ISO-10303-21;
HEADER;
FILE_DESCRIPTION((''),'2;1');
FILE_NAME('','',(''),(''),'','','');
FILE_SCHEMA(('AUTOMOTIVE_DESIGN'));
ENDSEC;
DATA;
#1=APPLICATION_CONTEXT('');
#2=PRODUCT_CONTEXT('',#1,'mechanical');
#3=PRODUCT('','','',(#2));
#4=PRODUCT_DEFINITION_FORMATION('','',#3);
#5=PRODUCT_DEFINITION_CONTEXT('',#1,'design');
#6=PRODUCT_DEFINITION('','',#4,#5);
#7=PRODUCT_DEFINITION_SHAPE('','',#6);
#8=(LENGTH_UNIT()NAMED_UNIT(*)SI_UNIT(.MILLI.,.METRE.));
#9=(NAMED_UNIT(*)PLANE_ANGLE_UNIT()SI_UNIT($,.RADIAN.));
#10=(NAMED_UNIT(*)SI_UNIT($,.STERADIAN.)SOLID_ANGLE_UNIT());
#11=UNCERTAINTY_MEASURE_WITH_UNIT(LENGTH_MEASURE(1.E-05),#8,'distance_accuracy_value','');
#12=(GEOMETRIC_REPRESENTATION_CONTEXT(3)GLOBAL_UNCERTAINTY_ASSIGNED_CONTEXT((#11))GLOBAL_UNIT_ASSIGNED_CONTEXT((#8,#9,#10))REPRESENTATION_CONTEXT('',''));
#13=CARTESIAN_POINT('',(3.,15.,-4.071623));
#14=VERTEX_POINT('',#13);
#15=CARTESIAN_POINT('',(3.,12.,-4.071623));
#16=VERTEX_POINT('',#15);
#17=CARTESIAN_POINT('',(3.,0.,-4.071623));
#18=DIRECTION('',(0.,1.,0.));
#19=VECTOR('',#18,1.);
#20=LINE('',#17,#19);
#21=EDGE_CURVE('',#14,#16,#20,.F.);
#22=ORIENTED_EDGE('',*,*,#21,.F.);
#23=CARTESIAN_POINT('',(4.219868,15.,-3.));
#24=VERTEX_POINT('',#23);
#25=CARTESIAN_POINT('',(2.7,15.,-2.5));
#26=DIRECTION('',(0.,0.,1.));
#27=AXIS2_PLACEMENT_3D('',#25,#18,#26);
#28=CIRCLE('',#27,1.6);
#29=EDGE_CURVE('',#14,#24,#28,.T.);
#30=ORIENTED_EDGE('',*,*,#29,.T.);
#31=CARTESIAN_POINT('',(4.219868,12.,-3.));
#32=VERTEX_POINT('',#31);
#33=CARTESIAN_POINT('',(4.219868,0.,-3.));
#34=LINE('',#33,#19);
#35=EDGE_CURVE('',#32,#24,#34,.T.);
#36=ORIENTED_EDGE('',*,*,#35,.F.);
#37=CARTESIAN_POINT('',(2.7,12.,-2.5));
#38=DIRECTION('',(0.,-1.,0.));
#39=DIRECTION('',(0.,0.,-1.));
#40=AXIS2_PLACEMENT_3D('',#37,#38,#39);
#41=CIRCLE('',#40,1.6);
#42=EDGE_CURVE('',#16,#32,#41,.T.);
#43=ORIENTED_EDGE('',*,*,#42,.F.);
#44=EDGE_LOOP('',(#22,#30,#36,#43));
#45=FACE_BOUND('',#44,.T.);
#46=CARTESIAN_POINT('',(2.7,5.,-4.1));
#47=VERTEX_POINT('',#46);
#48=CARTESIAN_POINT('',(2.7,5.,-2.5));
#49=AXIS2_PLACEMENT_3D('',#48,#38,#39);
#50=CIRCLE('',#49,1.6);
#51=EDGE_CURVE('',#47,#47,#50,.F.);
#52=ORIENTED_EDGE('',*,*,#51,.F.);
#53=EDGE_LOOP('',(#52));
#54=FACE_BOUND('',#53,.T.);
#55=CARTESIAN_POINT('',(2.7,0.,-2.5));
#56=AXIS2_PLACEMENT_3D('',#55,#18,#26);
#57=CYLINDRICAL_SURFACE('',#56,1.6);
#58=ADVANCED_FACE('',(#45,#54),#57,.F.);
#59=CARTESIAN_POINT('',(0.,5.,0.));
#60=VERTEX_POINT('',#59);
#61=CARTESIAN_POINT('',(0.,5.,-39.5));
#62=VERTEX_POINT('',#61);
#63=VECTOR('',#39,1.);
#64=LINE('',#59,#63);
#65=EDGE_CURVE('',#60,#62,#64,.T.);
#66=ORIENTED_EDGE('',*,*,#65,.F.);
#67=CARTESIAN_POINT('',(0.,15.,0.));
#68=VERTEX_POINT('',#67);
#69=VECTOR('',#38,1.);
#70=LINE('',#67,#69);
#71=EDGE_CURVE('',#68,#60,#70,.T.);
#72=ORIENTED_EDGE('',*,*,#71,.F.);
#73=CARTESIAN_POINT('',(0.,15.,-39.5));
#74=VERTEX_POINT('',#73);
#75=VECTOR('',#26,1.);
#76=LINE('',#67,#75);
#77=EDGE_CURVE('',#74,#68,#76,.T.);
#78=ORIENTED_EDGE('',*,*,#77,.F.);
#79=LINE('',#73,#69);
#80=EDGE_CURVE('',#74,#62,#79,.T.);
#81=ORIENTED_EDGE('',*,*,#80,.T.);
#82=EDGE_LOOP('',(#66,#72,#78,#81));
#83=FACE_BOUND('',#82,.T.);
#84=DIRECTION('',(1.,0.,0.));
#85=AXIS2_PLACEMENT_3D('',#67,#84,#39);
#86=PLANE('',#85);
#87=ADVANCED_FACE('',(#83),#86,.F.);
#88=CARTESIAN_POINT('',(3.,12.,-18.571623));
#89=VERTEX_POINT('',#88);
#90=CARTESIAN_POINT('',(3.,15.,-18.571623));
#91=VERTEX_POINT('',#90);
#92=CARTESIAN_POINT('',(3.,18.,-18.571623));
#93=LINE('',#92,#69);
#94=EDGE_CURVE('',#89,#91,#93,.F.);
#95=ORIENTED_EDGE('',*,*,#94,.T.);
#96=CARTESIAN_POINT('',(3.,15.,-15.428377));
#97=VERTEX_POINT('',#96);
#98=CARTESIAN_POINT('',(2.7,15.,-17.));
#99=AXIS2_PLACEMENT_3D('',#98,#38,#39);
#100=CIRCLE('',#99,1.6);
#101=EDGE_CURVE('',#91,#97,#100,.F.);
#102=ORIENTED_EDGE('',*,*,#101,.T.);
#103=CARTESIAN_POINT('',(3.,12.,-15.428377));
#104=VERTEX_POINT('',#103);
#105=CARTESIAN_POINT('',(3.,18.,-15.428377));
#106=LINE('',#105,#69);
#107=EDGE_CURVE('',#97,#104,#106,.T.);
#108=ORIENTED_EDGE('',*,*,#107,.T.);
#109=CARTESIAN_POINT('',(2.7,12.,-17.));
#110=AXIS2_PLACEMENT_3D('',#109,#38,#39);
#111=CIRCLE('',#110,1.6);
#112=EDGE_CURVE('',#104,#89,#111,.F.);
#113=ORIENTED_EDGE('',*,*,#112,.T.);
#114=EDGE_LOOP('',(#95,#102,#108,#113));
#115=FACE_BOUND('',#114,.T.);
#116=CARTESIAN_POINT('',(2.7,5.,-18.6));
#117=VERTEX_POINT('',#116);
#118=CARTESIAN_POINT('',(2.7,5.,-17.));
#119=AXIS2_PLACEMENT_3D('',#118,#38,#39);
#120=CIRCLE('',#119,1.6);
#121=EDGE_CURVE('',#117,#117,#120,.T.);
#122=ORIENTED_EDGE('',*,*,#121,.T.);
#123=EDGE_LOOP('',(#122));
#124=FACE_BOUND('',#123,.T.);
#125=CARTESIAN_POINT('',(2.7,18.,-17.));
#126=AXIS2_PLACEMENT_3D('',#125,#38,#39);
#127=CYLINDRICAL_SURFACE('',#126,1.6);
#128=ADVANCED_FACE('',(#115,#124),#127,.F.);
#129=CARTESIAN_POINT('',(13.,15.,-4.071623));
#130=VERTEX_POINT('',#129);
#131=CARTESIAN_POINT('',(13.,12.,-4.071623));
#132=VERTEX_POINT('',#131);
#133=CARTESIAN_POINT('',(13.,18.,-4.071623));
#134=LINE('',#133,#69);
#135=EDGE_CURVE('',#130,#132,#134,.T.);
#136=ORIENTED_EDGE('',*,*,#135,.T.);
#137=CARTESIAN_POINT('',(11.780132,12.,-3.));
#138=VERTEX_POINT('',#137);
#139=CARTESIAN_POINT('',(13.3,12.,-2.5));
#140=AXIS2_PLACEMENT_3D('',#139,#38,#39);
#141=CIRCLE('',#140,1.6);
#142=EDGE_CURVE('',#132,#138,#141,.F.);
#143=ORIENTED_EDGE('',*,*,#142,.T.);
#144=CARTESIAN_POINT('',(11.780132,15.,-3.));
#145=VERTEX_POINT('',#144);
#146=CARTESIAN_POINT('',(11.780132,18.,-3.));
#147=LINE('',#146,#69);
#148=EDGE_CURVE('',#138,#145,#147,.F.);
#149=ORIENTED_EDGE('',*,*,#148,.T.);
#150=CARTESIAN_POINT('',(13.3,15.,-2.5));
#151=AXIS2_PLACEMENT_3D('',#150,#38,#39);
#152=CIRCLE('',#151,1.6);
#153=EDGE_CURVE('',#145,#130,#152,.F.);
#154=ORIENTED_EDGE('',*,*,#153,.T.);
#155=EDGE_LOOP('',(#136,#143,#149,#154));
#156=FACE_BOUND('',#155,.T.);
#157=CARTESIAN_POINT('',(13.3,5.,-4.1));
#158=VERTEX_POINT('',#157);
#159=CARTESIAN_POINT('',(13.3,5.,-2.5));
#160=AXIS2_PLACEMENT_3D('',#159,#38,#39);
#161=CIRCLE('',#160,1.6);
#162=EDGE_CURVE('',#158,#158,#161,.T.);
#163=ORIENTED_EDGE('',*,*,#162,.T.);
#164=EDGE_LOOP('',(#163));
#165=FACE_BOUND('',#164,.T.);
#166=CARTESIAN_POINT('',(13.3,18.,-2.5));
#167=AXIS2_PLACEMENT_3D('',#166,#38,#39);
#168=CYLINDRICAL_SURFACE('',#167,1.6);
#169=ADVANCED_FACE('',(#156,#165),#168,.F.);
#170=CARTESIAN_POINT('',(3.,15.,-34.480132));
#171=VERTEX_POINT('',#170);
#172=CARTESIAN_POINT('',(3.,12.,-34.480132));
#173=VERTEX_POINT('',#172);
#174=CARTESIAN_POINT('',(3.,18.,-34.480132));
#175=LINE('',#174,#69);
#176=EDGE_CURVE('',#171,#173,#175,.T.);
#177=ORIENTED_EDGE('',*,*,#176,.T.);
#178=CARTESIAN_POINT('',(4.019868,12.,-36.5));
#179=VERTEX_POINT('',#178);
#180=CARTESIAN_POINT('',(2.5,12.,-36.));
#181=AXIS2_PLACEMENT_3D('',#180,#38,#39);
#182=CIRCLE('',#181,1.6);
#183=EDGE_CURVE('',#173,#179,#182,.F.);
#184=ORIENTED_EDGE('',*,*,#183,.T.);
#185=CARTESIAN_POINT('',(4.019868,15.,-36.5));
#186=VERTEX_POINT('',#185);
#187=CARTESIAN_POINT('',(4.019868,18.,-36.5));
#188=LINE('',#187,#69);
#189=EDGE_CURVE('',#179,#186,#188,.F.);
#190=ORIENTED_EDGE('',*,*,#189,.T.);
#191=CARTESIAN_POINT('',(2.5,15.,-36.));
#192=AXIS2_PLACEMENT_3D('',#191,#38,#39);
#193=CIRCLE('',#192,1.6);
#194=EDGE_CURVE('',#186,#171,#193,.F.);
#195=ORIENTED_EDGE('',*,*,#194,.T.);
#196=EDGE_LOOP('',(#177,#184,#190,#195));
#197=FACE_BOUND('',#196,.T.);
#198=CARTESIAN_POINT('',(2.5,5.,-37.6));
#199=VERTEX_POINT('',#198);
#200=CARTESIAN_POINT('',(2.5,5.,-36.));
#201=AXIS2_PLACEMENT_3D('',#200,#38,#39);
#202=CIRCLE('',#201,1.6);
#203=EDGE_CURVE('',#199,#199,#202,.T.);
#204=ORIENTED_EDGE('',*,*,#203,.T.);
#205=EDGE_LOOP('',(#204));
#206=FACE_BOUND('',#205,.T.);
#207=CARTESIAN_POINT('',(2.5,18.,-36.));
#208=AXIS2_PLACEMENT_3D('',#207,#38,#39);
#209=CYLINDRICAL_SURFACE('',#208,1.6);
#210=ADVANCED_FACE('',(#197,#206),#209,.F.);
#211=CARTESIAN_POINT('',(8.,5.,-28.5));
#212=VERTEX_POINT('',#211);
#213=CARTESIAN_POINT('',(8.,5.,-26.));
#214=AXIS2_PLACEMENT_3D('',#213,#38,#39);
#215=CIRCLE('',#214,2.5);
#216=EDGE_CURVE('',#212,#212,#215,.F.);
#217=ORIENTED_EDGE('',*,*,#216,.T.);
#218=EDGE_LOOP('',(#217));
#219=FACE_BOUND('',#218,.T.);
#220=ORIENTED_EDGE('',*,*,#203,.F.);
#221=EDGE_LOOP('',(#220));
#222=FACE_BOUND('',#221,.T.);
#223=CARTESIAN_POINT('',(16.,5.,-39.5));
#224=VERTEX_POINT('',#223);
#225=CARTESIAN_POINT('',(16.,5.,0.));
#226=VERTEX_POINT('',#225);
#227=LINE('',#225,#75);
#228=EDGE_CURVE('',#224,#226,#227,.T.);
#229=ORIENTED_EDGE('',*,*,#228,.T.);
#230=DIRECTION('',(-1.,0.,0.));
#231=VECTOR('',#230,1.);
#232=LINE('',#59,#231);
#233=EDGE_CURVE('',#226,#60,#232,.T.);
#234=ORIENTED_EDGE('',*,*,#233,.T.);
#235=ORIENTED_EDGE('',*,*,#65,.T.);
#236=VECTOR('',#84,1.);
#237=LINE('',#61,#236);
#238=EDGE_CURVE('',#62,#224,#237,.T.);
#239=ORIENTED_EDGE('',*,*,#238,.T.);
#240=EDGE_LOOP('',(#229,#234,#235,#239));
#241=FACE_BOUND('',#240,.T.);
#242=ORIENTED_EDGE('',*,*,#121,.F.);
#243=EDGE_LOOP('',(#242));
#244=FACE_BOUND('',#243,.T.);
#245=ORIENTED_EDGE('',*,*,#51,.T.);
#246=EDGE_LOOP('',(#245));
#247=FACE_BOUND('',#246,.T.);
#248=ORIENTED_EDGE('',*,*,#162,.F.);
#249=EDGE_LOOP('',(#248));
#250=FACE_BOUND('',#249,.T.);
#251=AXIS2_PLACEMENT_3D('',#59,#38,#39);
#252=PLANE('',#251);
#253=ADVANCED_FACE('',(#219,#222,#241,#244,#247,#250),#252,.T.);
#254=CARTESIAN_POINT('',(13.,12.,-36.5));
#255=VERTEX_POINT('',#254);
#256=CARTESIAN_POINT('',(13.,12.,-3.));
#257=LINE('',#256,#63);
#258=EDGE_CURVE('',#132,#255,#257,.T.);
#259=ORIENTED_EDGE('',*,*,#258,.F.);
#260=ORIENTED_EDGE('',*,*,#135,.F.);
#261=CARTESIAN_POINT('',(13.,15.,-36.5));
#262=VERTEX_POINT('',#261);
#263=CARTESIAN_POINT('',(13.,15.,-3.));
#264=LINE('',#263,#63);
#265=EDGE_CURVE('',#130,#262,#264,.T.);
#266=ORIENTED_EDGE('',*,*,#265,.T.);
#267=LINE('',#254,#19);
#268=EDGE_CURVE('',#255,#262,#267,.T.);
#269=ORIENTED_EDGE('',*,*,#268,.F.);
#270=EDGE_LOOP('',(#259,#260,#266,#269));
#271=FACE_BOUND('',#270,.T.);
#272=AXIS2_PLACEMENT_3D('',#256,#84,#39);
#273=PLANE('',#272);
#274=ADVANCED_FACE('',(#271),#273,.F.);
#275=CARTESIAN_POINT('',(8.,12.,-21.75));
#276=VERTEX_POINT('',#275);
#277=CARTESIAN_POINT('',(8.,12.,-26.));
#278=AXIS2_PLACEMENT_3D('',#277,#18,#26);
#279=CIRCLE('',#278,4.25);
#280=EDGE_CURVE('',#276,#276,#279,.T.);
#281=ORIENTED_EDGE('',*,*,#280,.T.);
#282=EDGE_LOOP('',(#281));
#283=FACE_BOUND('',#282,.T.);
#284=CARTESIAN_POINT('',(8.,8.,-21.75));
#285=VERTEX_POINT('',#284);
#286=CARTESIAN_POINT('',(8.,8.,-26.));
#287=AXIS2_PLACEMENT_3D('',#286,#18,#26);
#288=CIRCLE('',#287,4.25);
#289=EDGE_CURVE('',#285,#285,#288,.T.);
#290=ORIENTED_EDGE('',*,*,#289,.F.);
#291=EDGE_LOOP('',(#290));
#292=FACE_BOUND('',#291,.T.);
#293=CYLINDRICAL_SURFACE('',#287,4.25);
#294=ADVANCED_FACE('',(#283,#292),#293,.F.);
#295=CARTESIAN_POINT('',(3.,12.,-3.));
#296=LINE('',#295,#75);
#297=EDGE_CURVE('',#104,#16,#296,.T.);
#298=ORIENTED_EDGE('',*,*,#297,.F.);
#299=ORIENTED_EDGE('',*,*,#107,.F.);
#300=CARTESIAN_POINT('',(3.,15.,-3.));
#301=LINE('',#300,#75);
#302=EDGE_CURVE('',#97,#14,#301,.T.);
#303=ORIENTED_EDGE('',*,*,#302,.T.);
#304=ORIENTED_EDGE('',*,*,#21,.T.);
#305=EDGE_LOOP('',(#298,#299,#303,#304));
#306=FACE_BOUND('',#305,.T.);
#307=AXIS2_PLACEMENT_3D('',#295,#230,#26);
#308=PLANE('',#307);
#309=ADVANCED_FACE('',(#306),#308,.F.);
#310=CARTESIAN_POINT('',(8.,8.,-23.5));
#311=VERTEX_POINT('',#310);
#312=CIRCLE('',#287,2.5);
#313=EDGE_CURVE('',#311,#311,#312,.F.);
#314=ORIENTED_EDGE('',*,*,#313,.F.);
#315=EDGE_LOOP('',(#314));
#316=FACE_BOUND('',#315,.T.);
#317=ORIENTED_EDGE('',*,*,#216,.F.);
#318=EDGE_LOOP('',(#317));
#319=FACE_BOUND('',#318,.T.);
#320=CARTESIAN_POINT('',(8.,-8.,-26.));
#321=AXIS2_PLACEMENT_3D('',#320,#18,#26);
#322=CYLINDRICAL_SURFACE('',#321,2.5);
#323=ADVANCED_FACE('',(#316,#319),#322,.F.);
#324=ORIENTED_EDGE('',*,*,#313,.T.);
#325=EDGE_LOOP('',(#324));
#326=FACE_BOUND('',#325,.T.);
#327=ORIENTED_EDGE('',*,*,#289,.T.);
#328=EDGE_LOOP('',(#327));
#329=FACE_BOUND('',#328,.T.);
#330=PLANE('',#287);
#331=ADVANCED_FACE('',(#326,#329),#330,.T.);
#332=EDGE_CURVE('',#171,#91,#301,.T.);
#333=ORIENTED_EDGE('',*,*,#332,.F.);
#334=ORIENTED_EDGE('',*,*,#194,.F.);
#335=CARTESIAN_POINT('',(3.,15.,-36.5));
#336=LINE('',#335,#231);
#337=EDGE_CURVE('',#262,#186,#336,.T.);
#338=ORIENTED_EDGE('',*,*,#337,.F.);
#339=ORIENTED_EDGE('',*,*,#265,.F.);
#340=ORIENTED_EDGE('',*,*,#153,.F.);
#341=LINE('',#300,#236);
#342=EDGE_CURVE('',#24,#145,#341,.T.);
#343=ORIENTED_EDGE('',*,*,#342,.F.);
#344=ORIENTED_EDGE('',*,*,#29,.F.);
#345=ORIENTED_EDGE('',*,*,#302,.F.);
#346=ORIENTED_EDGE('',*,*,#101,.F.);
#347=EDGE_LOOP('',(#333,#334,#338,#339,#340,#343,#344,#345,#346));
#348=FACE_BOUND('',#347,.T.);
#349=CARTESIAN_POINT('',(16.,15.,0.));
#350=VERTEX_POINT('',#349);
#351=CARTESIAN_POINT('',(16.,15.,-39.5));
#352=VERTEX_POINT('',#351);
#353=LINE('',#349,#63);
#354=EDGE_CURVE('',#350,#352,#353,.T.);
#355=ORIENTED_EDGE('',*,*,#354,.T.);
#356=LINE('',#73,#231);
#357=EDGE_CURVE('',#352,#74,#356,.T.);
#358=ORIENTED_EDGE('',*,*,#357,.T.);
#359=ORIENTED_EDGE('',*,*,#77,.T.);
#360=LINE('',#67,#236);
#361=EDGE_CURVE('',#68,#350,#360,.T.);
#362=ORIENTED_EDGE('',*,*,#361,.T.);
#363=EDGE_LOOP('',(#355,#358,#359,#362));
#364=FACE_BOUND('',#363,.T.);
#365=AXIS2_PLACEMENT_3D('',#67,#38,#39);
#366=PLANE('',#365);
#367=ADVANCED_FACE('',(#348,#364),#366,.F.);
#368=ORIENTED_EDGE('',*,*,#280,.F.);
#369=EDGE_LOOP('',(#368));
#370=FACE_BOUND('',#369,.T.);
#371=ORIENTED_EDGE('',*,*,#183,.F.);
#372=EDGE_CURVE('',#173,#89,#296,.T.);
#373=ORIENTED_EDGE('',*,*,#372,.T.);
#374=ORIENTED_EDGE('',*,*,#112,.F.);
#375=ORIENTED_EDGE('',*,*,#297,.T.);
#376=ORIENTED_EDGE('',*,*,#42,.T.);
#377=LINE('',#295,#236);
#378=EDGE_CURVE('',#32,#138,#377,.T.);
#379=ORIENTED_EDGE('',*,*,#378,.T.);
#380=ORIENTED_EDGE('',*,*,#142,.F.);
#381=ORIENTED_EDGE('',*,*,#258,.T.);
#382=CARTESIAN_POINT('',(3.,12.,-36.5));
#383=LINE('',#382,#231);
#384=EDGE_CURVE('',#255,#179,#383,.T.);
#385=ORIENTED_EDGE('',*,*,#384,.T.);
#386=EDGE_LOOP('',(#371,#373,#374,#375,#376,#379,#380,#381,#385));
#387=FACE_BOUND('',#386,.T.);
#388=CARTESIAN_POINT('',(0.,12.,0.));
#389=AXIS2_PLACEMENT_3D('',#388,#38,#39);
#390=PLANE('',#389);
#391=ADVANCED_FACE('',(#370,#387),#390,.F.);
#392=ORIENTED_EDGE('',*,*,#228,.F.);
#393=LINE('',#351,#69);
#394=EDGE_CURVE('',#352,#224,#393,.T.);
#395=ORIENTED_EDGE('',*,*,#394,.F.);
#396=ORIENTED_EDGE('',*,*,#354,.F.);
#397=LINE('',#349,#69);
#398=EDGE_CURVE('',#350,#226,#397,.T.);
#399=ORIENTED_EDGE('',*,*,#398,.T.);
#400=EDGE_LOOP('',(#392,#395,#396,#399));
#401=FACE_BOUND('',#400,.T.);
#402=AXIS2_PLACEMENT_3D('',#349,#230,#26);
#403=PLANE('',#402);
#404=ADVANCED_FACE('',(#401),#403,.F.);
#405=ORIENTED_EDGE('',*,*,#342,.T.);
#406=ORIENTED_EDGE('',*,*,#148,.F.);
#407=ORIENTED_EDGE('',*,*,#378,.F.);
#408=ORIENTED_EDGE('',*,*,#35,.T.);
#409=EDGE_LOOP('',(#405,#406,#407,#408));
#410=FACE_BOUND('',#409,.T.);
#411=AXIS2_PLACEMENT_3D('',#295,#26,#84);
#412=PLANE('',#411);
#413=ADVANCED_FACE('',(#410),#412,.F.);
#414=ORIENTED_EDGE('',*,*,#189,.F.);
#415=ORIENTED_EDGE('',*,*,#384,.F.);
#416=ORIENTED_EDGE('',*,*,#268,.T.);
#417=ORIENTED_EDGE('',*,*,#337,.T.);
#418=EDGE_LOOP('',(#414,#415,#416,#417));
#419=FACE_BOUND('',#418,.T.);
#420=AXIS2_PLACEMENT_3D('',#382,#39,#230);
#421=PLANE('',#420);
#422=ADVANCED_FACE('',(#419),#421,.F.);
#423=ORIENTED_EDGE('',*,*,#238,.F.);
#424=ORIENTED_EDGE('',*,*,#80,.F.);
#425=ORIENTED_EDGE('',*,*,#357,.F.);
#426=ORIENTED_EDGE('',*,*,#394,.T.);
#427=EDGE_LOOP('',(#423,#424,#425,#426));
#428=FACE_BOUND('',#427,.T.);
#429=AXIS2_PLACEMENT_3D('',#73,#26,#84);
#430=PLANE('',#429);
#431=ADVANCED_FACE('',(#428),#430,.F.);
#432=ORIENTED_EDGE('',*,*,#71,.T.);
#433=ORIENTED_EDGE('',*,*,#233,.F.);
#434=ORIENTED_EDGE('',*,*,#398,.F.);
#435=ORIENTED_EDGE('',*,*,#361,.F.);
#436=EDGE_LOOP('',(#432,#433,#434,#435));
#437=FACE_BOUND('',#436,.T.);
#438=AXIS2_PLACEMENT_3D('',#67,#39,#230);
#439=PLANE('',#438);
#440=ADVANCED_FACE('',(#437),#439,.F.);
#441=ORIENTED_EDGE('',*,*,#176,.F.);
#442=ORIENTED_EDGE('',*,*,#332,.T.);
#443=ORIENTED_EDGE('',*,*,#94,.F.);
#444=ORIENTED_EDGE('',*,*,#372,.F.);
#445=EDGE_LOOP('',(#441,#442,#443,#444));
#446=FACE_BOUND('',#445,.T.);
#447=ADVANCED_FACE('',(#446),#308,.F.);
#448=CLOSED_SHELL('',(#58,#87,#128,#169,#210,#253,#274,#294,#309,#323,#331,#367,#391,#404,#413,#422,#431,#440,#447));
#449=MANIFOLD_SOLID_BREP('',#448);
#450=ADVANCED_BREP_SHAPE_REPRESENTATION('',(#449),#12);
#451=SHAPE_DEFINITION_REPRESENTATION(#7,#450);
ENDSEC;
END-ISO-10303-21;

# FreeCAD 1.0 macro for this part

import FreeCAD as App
import Part
import Sketcher

V = App.Vector


def add_polygon(sketch, points):
    """Adds a closed chain of lines whose ends are joined by coincident constraints."""
    first, n = sketch.GeometryCount, len(points)
    for a, b in zip(points, points[1:] + points[:1]):
        sketch.addGeometry(Part.LineSegment(App.Vector(*a, 0), App.Vector(*b, 0)), False)
    for i in range(n):
        sketch.addConstraint(Sketcher.Constraint("Coincident", first + i, 2, first + (i + 1) % n, 1))

doc = App.newDocument("Part")
body = doc.addObject("PartDesign::Body", "Body")

# Sketch on XZ plane
sketch1 = body.newObject("Sketcher::SketchObject", "Sketch")
sketch1.AttachmentSupport = (doc.getObject("XZ_Plane"), [""])
sketch1.MapMode = "FlatFace"
add_polygon(sketch1, [(0, -39.5), (0, 0), (16, 0), (16, -39.5)])  # lines 0-3
sketch1.addConstraint([
    Sketcher.Constraint("Vertical", 0),
    Sketcher.Constraint("Horizontal", 1),
    Sketcher.Constraint("Vertical", 2),
    Sketcher.Constraint("Horizontal", 3),
    Sketcher.Constraint("Coincident", 0, 2, -1, 1),
    Sketcher.Constraint("DistanceX", 1, 1, 1, 2, 16.0),
    Sketcher.Constraint("DistanceY", 0, 1, 0, 2, 39.5),
])
pad1 = body.newObject("PartDesign::Pad", "Pad")
pad1.Profile = sketch1
pad1.Length = 15
pad1.Reversed = True

# Sketch on XZ plane
sketch2 = body.newObject("Sketcher::SketchObject", "Sketch001")
sketch2.AttachmentSupport = (doc.getObject("XZ_Plane"), [""])
sketch2.MapMode = "FlatFace"
sketch2.AttachmentOffset = App.Placement(V(0, 0, -15), App.Rotation())
add_polygon(sketch2, [(3, -36.5), (3, -3), (13, -3), (13, -36.5)])  # lines 0-3
sketch2.addConstraint([
    Sketcher.Constraint("Vertical", 0),
    Sketcher.Constraint("Horizontal", 1),
    Sketcher.Constraint("Vertical", 2),
    Sketcher.Constraint("Horizontal", 3),
    Sketcher.Constraint("DistanceX", 1, 1, 1, 2, 10.0),
    Sketcher.Constraint("DistanceY", 0, 1, 0, 2, 33.5),
    Sketcher.Constraint("DistanceX", -1, 1, 0, 2, 3.0),
    Sketcher.Constraint("DistanceY", 0, 2, -1, 1, 3.0),
])
pocket1 = body.newObject("PartDesign::Pocket", "Pocket")
pocket1.Profile = sketch2
pocket1.Length = 3
pocket1.Reversed = True

# Sketch on XZ plane
sketch3 = body.newObject("Sketcher::SketchObject", "Sketch002")
sketch3.AttachmentSupport = (doc.getObject("XZ_Plane"), [""])
sketch3.MapMode = "FlatFace"
sketch3.AttachmentOffset = App.Placement(V(0, 0, -12), App.Rotation())
sketch3.addGeometry(Part.Circle(V(2.7, -2.5, 0), V(0, 0, 1), 1.6), False)
sketch3.addConstraint([
    Sketcher.Constraint("Diameter", 0, 3.2),
    Sketcher.Constraint("DistanceX", -1, 1, 0, 3, 2.7),
    Sketcher.Constraint("DistanceY", 0, 3, -1, 1, 2.5),
])
pocket2 = body.newObject("PartDesign::Pocket", "Pocket001")
pocket2.Profile = sketch3
pocket2.Type = "ThroughAll"
pocket2.Midplane = True

# Sketch on XZ plane
sketch4 = body.newObject("Sketcher::SketchObject", "Sketch003")
sketch4.AttachmentSupport = (doc.getObject("XZ_Plane"), [""])
sketch4.MapMode = "FlatFace"
sketch4.AttachmentOffset = App.Placement(V(0, 0, -15), App.Rotation())
sketch4.addGeometry([
    Part.Circle(V(13.3, -2.5, 0), V(0, 0, 1), 1.6),
    Part.Circle(V(2.7, -17, 0), V(0, 0, 1), 1.6),
    Part.Circle(V(2.5, -36, 0), V(0, 0, 1), 1.6),
], False)
sketch4.addConstraint([
    Sketcher.Constraint("Equal", 0, 1),
    Sketcher.Constraint("Equal", 1, 2),
    Sketcher.Constraint("Diameter", 0, 3.2),
    Sketcher.Constraint("DistanceY", 1, 3, -1, 1, 17.0),
    Sketcher.Constraint("DistanceY", 2, 3, -1, 1, 36.0),
    Sketcher.Constraint("DistanceX", -1, 1, 0, 3, 13.3),
    Sketcher.Constraint("DistanceY", 0, 3, -1, 1, 2.5),
    Sketcher.Constraint("DistanceX", -1, 1, 1, 3, 2.7),
    Sketcher.Constraint("DistanceX", -1, 1, 2, 3, 2.5),
])
pocket3 = body.newObject("PartDesign::Pocket", "Pocket002")
pocket3.Profile = sketch4
pocket3.Type = "ThroughAll"
pocket3.Midplane = True

# Sketch on XZ plane
sketch5 = body.newObject("Sketcher::SketchObject", "Sketch004")
sketch5.AttachmentSupport = (doc.getObject("XZ_Plane"), [""])
sketch5.MapMode = "FlatFace"
sketch5.AttachmentOffset = App.Placement(V(0, 0, -12), App.Rotation())
sketch5.addGeometry(Part.Circle(V(8, -26, 0), V(0, 0, 1), 2.5), False)
sketch5.addConstraint([
    Sketcher.Constraint("Diameter", 0, 5.0),
    Sketcher.Constraint("DistanceX", -1, 1, 0, 3, 8.0),
    Sketcher.Constraint("DistanceY", 0, 3, -1, 1, 26.0),
])
pocket4 = body.newObject("PartDesign::Pocket", "Pocket003")
pocket4.Profile = sketch5
pocket4.Length = 20
pocket4.Reversed = True

# Sketch on XZ plane
sketch6 = body.newObject("Sketcher::SketchObject", "Sketch005")
sketch6.AttachmentSupport = (doc.getObject("XZ_Plane"), [""])
sketch6.MapMode = "FlatFace"
sketch6.AttachmentOffset = App.Placement(V(0, 0, -12), App.Rotation())
sketch6.addGeometry(Part.Circle(V(8, -26, 0), V(0, 0, 1), 4.25), False)
sketch6.addConstraint([
    Sketcher.Constraint("Diameter", 0, 8.5),
    Sketcher.Constraint("DistanceX", -1, 1, 0, 3, 8.0),
    Sketcher.Constraint("DistanceY", 0, 3, -1, 1, 26.0),
])
pocket5 = body.newObject("PartDesign::Pocket", "Pocket004")
pocket5.Profile = sketch6
pocket5.Length = 4
pocket5.Reversed = True

# Sketch on XZ plane
sketch7 = body.newObject("Sketcher::SketchObject", "Sketch006")
sketch7.AttachmentSupport = (doc.getObject("XZ_Plane"), [""])
sketch7.MapMode = "FlatFace"
add_polygon(sketch7, [(-3.986659, 7.449131), (-3.986659, -42.170364), (19.087387, -42.170364), (19.087387, 7.449131)])  # lines 0-3
sketch7.addConstraint([
    Sketcher.Constraint("Vertical", 0),
    Sketcher.Constraint("Horizontal", 1),
    Sketcher.Constraint("Vertical", 2),
    Sketcher.Constraint("Horizontal", 3),
    Sketcher.Constraint("DistanceX", 1, 1, 1, 2, 23.074047),
    Sketcher.Constraint("DistanceY", 0, 2, 0, 1, 49.619495),
    Sketcher.Constraint("DistanceX", 0, 2, -1, 1, 3.986659),
    Sketcher.Constraint("DistanceY", -1, 1, 2, 2, 7.449131),
])
pocket6 = body.newObject("PartDesign::Pocket", "Pocket005")
pocket6.Profile = sketch7
pocket6.Length = 5

doc.recompute()
